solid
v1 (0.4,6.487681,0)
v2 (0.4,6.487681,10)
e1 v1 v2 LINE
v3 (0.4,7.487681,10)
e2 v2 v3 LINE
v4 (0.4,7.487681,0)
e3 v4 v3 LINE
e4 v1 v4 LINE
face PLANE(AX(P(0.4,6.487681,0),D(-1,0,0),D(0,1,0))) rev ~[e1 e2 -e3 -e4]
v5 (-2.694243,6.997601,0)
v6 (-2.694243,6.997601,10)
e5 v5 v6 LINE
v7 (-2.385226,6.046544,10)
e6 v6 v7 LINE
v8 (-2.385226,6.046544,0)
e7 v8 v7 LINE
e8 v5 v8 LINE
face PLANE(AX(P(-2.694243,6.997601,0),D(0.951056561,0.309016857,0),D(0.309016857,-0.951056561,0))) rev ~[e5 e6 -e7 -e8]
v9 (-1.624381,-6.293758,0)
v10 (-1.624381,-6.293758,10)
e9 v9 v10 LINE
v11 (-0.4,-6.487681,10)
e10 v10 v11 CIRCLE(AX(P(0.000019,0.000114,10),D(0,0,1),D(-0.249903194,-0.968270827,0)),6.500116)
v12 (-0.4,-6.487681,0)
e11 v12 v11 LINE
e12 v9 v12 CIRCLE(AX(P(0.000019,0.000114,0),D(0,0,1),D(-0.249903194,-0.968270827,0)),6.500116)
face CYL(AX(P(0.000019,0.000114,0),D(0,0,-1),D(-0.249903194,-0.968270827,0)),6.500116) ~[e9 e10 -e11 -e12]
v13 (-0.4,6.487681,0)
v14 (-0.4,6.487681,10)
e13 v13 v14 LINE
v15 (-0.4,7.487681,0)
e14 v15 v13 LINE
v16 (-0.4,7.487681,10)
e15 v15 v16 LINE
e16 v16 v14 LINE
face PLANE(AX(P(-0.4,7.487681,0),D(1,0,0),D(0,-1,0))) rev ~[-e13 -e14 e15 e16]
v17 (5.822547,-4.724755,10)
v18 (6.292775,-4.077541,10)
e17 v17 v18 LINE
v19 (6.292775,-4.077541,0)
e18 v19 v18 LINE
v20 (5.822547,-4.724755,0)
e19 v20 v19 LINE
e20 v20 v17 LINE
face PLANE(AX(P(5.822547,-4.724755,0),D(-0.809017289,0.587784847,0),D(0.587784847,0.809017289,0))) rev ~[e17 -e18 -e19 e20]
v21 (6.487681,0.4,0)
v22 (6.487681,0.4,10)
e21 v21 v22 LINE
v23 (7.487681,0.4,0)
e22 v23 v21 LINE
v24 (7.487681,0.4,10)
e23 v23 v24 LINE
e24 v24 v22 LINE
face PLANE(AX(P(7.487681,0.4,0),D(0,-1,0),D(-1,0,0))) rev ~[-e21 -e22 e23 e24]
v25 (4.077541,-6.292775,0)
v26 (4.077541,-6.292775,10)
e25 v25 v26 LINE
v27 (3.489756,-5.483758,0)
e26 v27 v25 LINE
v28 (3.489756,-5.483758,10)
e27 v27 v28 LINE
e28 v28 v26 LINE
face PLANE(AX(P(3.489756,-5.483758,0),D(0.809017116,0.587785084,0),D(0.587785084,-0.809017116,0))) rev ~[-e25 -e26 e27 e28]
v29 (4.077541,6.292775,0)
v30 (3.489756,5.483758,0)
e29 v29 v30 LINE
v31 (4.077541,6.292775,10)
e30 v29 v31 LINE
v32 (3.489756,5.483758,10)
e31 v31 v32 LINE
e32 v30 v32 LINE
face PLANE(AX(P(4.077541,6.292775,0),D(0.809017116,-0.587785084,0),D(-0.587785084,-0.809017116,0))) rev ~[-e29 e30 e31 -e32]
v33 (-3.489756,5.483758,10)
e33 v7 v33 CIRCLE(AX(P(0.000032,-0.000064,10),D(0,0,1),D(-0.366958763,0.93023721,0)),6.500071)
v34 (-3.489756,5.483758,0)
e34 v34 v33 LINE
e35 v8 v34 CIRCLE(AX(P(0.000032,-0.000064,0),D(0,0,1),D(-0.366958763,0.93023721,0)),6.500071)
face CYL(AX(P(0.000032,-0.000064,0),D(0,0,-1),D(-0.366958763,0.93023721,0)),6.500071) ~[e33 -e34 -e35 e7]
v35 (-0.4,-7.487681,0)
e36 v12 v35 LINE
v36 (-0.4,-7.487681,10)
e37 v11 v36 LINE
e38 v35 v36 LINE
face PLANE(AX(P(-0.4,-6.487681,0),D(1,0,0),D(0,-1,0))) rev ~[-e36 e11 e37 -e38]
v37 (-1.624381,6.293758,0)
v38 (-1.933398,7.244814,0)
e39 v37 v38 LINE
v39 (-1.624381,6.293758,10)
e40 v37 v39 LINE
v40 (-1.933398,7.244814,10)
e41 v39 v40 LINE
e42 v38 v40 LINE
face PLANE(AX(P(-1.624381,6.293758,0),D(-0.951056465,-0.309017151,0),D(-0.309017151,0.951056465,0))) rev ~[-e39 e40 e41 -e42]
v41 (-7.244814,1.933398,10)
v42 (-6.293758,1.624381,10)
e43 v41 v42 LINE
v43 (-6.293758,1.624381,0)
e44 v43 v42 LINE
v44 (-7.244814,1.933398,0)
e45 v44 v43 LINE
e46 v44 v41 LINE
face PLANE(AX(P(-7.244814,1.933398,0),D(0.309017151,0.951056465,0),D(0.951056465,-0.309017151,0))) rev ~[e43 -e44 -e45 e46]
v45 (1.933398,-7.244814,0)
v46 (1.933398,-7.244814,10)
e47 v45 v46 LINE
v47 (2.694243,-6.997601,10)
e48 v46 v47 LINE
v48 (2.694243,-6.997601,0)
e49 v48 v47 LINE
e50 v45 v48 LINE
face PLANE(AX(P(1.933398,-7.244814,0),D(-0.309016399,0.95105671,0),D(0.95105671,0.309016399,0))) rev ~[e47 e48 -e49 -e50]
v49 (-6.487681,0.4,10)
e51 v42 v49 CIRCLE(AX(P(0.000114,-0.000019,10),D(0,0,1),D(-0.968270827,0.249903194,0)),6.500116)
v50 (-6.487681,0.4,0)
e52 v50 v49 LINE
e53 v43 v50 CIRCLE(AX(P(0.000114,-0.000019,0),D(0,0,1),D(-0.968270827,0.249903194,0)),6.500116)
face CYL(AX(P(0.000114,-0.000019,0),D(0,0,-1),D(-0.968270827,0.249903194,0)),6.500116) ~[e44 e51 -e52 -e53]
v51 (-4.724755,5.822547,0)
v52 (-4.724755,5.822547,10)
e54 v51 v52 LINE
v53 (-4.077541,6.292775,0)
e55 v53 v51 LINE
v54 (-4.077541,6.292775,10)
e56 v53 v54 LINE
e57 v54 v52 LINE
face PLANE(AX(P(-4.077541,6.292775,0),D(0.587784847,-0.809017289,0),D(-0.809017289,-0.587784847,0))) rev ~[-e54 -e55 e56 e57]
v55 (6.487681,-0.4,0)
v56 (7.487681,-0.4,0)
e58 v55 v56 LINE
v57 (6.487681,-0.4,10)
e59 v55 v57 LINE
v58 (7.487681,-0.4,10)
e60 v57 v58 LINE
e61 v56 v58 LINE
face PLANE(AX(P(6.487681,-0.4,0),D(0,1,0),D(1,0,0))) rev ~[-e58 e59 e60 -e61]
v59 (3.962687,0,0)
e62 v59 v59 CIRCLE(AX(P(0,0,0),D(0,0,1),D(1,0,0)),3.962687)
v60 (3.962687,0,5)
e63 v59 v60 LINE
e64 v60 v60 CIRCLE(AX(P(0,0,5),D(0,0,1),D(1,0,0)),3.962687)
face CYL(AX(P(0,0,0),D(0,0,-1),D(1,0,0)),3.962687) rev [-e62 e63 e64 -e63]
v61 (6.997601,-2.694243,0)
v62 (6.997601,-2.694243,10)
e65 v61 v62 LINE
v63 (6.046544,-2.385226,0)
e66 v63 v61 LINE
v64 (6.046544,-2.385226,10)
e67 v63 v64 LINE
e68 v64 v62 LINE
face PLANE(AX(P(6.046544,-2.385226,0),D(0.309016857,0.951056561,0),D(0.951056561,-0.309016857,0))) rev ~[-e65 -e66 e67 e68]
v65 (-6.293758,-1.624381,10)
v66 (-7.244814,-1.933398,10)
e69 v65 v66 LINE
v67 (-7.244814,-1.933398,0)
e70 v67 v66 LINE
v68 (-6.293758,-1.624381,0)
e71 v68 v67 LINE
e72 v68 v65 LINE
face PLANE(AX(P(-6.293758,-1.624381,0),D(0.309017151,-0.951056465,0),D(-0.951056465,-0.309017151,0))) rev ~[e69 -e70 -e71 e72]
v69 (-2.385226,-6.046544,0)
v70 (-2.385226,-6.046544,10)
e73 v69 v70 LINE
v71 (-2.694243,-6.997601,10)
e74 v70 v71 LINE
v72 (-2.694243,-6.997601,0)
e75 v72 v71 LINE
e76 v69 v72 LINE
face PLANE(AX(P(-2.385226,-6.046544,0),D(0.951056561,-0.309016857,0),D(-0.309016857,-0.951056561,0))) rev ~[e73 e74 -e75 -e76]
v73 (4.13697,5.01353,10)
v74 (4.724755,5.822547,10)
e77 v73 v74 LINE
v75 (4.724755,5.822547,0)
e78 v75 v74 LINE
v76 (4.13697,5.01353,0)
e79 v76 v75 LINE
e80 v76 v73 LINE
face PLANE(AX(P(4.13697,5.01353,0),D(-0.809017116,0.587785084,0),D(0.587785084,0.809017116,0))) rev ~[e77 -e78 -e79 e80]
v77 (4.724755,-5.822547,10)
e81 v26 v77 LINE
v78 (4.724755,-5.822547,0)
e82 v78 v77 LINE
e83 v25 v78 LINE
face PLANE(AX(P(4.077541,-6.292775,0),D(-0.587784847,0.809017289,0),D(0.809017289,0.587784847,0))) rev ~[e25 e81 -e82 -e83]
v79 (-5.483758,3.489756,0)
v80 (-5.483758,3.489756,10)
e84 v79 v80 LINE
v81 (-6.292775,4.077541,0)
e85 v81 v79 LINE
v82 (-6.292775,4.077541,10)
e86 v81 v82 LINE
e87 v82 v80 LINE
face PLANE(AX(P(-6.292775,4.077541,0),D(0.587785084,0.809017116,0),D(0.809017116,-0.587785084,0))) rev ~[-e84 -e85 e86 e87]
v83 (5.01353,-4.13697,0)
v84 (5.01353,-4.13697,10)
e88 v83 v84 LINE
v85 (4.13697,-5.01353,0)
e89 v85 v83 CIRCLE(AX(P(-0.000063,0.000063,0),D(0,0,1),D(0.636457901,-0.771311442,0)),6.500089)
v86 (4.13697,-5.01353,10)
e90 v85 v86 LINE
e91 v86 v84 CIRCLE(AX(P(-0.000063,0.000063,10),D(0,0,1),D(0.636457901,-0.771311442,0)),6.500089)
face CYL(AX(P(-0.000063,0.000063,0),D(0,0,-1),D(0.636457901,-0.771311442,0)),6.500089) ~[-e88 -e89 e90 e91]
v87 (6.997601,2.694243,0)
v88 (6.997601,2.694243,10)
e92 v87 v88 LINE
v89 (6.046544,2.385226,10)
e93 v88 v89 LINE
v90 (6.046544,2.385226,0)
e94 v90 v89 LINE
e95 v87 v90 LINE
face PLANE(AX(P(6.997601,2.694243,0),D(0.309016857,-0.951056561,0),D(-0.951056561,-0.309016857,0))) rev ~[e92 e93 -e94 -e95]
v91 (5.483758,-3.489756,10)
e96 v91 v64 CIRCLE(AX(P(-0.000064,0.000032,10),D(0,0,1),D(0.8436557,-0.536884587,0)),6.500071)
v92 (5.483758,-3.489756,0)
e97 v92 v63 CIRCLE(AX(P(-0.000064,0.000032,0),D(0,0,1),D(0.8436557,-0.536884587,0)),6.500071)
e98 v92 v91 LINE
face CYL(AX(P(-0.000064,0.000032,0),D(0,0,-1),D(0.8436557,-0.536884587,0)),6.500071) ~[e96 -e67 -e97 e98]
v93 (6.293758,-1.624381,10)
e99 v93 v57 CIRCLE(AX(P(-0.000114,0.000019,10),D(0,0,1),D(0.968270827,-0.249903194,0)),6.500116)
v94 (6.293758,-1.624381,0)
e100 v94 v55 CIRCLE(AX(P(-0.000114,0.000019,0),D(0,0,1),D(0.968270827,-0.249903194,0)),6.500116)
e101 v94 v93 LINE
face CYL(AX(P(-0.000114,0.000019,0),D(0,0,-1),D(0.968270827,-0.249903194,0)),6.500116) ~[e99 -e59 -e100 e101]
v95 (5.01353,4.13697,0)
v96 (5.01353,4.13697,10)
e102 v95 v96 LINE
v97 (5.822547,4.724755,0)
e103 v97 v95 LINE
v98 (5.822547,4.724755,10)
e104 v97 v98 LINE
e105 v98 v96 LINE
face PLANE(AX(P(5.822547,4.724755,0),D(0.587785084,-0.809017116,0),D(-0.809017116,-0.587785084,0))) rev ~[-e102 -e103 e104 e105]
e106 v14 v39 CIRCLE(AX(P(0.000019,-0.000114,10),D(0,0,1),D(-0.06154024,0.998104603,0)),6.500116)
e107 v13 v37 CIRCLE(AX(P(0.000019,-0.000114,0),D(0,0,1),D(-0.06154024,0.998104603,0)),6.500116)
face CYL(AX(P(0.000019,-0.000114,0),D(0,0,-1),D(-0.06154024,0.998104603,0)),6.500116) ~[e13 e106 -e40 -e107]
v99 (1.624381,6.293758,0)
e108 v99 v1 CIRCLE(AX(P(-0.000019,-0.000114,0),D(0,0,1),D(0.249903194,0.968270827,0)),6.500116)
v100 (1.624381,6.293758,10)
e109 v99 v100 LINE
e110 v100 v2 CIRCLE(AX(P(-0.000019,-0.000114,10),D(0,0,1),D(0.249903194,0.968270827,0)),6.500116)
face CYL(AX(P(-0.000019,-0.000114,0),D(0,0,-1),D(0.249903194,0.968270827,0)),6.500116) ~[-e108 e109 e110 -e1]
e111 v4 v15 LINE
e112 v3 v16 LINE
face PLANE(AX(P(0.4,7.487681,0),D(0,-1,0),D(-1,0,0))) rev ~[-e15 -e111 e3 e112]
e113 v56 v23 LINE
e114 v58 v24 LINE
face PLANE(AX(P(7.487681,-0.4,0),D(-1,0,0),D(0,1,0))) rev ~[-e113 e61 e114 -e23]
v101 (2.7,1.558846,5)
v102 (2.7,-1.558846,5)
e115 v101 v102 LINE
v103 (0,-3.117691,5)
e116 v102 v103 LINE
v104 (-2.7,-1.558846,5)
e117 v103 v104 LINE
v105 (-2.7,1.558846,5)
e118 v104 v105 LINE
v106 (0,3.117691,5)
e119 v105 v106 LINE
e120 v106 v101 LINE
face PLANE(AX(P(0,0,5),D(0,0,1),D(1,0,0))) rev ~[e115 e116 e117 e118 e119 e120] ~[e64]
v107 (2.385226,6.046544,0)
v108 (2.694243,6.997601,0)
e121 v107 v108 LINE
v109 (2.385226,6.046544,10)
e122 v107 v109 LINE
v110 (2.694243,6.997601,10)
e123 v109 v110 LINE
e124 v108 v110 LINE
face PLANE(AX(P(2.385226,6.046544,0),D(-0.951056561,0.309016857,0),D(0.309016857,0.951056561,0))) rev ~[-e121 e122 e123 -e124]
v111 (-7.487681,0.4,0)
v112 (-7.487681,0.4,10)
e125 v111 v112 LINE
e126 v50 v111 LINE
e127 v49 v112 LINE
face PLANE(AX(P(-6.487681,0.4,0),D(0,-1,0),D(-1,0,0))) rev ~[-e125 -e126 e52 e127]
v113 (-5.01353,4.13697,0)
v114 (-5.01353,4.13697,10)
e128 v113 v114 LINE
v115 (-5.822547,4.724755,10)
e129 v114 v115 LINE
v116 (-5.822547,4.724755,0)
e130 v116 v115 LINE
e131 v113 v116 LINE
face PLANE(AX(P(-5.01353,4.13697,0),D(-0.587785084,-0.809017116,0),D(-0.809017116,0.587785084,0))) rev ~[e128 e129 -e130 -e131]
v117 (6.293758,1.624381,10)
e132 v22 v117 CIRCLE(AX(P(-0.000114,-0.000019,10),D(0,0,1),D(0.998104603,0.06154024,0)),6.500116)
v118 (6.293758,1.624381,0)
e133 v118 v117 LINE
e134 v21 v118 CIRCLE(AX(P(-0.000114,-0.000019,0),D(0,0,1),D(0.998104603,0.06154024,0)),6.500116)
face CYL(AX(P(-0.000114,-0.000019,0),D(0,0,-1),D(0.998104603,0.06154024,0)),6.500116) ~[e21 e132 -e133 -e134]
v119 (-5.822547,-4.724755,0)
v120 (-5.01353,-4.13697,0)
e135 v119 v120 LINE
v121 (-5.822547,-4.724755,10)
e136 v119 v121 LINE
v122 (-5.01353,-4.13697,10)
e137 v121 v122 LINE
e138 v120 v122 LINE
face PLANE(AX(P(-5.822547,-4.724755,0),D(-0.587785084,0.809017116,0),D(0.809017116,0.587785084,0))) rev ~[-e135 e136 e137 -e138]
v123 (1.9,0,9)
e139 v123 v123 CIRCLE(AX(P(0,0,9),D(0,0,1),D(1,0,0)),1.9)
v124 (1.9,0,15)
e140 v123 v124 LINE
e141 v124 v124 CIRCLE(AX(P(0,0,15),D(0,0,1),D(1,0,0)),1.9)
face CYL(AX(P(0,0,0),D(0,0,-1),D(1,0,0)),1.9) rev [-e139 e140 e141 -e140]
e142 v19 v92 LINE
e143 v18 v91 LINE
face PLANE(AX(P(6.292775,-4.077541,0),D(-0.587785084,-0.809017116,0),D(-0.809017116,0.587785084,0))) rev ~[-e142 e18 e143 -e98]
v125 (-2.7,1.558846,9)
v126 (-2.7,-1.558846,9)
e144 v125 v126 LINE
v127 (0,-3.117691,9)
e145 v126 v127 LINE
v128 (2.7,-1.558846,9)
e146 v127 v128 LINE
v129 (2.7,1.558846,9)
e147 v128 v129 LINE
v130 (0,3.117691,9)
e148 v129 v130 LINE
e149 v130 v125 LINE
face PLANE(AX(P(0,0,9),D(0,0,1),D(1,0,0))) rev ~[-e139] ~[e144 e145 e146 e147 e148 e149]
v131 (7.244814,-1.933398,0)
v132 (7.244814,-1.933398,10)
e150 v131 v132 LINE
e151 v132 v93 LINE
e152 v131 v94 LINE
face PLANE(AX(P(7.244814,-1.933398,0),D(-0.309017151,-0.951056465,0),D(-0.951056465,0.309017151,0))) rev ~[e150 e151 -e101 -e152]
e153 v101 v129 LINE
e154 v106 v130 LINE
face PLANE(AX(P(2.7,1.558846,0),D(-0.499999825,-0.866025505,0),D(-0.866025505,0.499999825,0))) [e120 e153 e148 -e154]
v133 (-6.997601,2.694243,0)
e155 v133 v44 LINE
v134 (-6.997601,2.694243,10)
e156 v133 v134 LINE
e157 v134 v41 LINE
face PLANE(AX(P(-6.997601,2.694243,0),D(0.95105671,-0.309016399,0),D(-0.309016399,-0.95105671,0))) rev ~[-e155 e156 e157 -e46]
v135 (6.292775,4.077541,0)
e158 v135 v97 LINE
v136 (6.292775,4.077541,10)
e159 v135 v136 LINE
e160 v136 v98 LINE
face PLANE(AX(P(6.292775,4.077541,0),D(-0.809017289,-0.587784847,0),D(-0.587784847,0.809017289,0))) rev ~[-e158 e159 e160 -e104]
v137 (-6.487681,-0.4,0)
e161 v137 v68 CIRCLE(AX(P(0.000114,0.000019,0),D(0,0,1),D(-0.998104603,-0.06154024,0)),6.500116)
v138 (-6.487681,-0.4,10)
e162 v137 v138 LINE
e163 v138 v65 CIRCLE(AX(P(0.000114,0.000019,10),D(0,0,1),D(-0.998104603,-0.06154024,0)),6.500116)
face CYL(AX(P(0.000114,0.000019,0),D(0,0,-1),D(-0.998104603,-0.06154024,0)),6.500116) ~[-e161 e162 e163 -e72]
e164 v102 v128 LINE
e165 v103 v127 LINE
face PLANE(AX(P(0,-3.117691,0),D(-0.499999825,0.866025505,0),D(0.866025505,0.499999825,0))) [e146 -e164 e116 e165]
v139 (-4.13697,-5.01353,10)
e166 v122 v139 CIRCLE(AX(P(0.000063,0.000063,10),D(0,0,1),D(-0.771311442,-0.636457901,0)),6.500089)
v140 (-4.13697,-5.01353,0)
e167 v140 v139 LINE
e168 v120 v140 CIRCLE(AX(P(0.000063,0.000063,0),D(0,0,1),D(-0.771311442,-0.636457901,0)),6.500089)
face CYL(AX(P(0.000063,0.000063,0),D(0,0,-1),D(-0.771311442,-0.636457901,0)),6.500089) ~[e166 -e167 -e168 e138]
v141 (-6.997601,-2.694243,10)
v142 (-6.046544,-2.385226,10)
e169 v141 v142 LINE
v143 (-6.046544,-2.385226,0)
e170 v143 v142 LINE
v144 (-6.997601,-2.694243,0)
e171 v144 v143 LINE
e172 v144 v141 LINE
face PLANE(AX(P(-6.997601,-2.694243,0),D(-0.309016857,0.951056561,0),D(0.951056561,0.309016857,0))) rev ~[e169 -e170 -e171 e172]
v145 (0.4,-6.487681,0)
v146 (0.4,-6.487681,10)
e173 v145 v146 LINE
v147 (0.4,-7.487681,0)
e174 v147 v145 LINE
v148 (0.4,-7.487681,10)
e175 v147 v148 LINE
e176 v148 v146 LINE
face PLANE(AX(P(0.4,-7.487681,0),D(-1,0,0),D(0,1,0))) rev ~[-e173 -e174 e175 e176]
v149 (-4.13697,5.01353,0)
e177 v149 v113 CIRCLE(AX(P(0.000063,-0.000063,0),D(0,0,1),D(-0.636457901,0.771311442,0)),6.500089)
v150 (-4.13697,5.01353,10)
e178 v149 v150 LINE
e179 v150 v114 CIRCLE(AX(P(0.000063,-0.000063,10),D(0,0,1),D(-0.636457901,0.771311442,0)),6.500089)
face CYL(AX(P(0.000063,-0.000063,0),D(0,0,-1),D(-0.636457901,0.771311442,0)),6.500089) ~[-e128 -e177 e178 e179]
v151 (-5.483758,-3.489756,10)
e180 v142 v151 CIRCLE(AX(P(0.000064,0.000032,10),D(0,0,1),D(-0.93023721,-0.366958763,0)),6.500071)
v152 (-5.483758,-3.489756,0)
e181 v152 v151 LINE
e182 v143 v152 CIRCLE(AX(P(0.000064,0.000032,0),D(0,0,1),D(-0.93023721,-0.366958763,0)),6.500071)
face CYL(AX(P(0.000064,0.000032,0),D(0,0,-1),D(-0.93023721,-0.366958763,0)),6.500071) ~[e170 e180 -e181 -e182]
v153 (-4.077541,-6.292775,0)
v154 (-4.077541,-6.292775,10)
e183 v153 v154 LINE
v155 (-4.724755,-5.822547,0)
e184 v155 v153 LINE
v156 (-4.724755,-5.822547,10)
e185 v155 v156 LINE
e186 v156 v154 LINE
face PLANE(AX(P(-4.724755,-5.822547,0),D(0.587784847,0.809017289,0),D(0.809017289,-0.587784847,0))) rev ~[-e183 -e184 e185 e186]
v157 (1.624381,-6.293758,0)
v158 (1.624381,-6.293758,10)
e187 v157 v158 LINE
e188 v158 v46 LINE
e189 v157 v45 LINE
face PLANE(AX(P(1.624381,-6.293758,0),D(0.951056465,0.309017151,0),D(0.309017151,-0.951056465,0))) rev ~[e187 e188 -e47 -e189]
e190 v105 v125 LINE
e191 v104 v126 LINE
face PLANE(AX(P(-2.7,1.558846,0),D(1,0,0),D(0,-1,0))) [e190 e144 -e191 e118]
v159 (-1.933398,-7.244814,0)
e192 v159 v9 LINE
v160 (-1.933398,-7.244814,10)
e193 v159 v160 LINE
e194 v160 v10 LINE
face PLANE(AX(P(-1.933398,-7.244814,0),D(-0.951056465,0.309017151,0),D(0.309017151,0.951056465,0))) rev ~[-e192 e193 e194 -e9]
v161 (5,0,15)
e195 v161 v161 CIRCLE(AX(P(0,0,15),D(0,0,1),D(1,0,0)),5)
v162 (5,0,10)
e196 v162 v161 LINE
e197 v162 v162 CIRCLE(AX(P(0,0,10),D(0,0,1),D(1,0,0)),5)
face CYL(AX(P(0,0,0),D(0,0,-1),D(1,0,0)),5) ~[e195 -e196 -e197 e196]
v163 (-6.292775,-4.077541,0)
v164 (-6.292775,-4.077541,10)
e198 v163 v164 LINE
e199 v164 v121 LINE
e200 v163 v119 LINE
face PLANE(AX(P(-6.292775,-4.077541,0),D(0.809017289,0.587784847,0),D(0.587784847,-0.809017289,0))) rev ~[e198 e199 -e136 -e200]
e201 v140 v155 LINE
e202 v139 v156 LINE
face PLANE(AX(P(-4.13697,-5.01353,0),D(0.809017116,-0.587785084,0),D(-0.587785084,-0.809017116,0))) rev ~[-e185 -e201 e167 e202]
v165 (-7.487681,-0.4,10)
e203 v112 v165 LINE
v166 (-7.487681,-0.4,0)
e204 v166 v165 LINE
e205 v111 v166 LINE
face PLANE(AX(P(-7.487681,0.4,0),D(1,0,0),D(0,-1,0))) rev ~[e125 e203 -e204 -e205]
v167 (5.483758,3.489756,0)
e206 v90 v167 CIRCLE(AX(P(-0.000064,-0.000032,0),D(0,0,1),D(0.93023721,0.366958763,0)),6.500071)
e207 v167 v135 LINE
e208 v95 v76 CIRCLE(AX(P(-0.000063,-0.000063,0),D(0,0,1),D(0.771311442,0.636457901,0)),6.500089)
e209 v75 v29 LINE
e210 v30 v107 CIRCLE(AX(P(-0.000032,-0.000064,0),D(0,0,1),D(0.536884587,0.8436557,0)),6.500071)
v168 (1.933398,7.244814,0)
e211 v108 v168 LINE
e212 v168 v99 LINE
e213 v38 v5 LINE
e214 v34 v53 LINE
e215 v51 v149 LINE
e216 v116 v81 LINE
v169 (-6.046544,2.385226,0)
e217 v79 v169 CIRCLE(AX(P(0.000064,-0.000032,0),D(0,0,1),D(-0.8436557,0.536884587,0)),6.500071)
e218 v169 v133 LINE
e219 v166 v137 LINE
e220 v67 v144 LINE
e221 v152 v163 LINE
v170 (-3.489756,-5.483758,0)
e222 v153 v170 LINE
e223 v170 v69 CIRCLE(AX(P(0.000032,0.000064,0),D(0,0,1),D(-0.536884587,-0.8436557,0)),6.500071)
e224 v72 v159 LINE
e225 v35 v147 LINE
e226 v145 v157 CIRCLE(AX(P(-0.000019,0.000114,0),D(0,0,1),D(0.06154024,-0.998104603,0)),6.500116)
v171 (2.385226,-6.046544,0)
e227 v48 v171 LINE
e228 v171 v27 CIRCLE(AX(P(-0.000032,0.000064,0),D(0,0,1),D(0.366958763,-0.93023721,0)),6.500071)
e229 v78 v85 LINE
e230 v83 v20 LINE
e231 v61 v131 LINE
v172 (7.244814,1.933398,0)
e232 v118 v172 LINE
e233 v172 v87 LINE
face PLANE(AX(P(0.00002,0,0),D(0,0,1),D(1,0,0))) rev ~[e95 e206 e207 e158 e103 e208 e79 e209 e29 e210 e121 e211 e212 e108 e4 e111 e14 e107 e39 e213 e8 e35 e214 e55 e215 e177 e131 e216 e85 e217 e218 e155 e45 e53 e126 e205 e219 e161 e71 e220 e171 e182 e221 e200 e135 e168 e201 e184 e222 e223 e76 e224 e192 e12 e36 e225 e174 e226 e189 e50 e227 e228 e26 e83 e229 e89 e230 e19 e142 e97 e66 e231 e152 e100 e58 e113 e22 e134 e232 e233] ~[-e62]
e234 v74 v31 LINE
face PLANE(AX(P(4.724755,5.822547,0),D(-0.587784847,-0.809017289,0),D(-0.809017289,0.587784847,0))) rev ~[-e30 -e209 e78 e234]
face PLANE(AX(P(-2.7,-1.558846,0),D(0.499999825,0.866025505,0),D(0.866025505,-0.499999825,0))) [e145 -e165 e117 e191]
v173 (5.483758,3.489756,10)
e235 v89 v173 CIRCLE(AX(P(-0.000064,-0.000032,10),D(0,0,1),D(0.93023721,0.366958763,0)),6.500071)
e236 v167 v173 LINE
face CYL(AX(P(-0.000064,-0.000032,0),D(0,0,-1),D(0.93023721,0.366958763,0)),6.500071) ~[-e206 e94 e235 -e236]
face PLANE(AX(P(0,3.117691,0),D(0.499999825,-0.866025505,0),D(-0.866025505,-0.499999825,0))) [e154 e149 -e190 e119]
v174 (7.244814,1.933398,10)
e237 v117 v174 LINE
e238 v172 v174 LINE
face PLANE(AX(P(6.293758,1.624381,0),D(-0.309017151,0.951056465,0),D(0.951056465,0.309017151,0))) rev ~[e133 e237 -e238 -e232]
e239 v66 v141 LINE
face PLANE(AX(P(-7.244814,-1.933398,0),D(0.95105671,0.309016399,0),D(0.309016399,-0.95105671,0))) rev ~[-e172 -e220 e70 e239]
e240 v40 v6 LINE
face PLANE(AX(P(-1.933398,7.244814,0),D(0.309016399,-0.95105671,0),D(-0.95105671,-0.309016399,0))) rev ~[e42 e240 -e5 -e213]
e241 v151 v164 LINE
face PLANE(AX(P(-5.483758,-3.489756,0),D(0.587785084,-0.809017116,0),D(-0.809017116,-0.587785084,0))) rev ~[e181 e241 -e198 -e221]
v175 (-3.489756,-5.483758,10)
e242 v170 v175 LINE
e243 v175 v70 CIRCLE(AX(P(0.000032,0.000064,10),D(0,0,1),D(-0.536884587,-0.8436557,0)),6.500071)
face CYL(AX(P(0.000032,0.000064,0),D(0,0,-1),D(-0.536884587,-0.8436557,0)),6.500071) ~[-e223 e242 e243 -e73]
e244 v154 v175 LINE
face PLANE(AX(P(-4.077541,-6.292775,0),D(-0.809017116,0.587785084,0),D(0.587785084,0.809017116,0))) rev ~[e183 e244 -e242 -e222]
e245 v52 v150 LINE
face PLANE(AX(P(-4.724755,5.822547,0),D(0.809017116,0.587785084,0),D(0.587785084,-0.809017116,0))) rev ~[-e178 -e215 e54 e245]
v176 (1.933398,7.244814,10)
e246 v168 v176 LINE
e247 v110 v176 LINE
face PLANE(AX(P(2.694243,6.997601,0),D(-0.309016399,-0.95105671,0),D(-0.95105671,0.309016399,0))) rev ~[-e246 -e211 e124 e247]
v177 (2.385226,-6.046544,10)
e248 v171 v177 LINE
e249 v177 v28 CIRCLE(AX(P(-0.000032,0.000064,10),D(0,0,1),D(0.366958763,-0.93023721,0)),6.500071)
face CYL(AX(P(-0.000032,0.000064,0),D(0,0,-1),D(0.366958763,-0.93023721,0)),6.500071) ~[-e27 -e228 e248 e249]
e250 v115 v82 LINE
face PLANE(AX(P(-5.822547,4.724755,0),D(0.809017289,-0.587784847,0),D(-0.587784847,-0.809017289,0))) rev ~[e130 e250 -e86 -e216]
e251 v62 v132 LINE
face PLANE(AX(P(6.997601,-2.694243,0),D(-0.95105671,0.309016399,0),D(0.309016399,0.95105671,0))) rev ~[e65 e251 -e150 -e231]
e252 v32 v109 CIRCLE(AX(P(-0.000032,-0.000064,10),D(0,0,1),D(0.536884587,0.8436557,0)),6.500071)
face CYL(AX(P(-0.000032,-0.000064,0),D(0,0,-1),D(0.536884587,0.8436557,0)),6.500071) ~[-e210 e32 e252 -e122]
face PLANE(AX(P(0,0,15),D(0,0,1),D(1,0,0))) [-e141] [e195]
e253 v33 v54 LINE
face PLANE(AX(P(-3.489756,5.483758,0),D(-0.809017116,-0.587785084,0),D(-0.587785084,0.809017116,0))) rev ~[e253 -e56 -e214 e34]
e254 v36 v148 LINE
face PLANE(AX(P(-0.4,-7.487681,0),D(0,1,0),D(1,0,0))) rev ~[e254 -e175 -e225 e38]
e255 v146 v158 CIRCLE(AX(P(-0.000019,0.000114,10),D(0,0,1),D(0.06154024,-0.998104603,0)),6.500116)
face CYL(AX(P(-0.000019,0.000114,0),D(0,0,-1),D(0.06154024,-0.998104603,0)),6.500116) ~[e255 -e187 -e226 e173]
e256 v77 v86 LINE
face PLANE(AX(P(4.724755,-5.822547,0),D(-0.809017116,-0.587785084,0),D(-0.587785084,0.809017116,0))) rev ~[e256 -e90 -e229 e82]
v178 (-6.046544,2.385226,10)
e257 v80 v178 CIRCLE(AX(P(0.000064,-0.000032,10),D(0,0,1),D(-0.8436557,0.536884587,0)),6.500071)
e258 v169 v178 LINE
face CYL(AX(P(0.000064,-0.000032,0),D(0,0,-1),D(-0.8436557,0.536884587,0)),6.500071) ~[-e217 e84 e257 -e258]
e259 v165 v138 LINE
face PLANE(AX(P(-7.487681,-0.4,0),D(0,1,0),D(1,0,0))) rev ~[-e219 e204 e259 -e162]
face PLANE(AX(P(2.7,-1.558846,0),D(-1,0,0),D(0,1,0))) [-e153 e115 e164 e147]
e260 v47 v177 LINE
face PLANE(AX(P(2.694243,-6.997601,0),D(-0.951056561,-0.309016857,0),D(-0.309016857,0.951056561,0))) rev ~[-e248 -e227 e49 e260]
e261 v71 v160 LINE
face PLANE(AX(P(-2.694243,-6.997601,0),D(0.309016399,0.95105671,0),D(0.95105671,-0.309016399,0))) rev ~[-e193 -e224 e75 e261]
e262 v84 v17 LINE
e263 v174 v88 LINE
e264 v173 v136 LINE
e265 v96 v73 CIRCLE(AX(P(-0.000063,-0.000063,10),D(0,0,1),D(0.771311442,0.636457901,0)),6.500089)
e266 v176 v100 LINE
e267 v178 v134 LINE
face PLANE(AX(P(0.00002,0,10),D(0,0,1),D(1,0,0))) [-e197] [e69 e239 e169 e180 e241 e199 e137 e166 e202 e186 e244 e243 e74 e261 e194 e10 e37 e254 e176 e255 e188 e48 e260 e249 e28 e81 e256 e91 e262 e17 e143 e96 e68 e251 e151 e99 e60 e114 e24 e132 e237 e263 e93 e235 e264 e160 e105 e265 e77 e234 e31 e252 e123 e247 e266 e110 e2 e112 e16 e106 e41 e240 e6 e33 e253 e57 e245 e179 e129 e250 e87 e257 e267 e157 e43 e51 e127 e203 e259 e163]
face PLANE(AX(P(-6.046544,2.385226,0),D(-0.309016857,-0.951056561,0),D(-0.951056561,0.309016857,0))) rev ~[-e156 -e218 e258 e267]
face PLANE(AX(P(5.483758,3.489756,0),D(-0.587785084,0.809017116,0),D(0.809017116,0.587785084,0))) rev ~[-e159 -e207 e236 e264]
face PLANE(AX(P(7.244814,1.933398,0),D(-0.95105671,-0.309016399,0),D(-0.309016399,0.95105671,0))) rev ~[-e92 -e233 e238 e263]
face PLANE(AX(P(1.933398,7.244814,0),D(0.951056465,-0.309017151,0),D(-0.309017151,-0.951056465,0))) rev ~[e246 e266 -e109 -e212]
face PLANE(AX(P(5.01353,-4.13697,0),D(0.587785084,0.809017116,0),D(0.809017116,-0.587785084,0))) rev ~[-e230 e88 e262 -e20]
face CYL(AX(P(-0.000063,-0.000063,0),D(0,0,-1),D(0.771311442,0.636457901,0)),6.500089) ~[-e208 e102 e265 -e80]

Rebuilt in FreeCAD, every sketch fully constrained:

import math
import FreeCAD as App
import Part
import Sketcher
Q = App.Units.Quantity


def add_polygon(sketch, points):
    """Adds a closed chain of lines whose ends are joined by coincident constraints."""
    first, n = sketch.GeometryCount, len(points)
    for a, b in zip(points, points[1:] + points[:1]):
        sketch.addGeometry(Part.LineSegment(App.Vector(*a, 0), App.Vector(*b, 0)), False)
    for i in range(n):
        sketch.addConstraint(Sketcher.Constraint("Coincident", first + i, 2, first + (i + 1) % n, 1))

doc = App.newDocument("Part")
params = doc.addObject("Spreadsheet::Sheet", "Params")
for row, (alias, value) in enumerate([
    ("sketch1_diameter", "10 mm"),
    ("sketch1_diameter2", "3.8 mm"),
    ("pad1_length", "15 mm"),
    ("sketch2_diameter", "10 mm"),
    ("sketch2_width", "1 mm"),
    ("sketch2_length", "1 mm"),
    ("sketch2_width2", "0.8 mm"),
    ("sketch2_length2", "0.8 mm"),
    ("pad2_length", "10 mm"),
    ("pocket1_length", "5 mm"),
    ("sketch4_diameter", "3.8 mm"),
    ("pocket2_length", "9 mm"),
], start=1):
    params.set(f"A{row}", alias)
    params.set(f"B{row}", "=" + value)
    params.setAlias(f"B{row}", alias)

body = doc.addObject("PartDesign::Body", "Body")

# Sketch on XY plane
sketch1 = body.newObject("Sketcher::SketchObject", "Sketch")
sketch1.AttachmentSupport = (doc.getObject("XY_Plane"), [""])
sketch1.MapMode = "FlatFace"
sketch1.addGeometry([
    Part.Circle(App.Vector(0, 0, 0), App.Vector(0, 0, 1), 5),
    Part.Circle(App.Vector(0, 0, 0), App.Vector(0, 0, 1), 1.9),
], False)
sketch1.addConstraint([
    Sketcher.Constraint("Coincident", 0, 3, -1, 1),
    Sketcher.Constraint("Coincident", 1, 3, -1, 1),
    Sketcher.Constraint("Diameter", 0, Q("10 mm")),
    Sketcher.Constraint("Diameter", 1, Q("3.8 mm")),
])
sketch1.setExpression("Constraints[2]", "Params.sketch1_diameter")
sketch1.setExpression("Constraints[3]", "Params.sketch1_diameter2")
pad1 = body.newObject("PartDesign::Pad", "Pad")
pad1.Profile = sketch1
pad1.setExpression("Length", "Params.pad1_length")

# Sketch on XY plane
sketch2 = body.newObject("Sketcher::SketchObject", "Sketch001")
sketch2.AttachmentSupport = (doc.getObject("XY_Plane"), [""])
sketch2.MapMode = "FlatFace"
sketch2.addGeometry([
    Part.ArcOfCircle(Part.Circle(App.Vector(-0.000114, -0.000019, 0), App.Vector(0, 0, 1), 6.500116), math.radians(3.528225), math.radians(14.471784)),  # 0
    Part.LineSegment(App.Vector(6.293758, 1.624381, 0), App.Vector(7.244814, 1.933398, 0)),  # 1
    Part.LineSegment(App.Vector(7.244814, 1.933398, 0), App.Vector(6.997601, 2.694243, 0)),  # 2
    Part.LineSegment(App.Vector(6.997601, 2.694243, 0), App.Vector(6.046544, 2.385226, 0)),  # 3
    Part.ArcOfCircle(Part.Circle(App.Vector(-0.000064, -0.000032, 0), App.Vector(0, 0, 1), 6.500071), math.radians(21.528178), math.radians(32.47181)),  # 4
    Part.LineSegment(App.Vector(5.483758, 3.489756, 0), App.Vector(6.292775, 4.077541, 0)),  # 5
    Part.LineSegment(App.Vector(6.292775, 4.077541, 0), App.Vector(5.822547, 4.724755, 0)),  # 6
    Part.LineSegment(App.Vector(5.822547, 4.724755, 0), App.Vector(5.01353, 4.13697, 0)),  # 7
    Part.ArcOfCircle(Part.Circle(App.Vector(-0.000063, -0.000063, 0), App.Vector(0, 0, 1), 6.500089), math.radians(39.528198), math.radians(50.471802)),  # 8
    Part.LineSegment(App.Vector(4.13697, 5.01353, 0), App.Vector(4.724755, 5.822547, 0)),  # 9
    Part.LineSegment(App.Vector(4.724755, 5.822547, 0), App.Vector(4.077541, 6.292775, 0)),  # 10
    Part.LineSegment(App.Vector(4.077541, 6.292775, 0), App.Vector(3.489756, 5.483758, 0)),  # 11
    Part.ArcOfCircle(Part.Circle(App.Vector(-0.000032, -0.000064, 0), App.Vector(0, 0, 1), 6.500071), math.radians(57.52819), math.radians(68.471822)),  # 12
    Part.LineSegment(App.Vector(2.385226, 6.046544, 0), App.Vector(2.694243, 6.997601, 0)),  # 13
    Part.LineSegment(App.Vector(2.694243, 6.997601, 0), App.Vector(1.933398, 7.244814, 0)),  # 14
    Part.LineSegment(App.Vector(1.933398, 7.244814, 0), App.Vector(1.624381, 6.293758, 0)),  # 15
    Part.ArcOfCircle(Part.Circle(App.Vector(-0.000019, -0.000114, 0), App.Vector(0, 0, 1), 6.500116), math.radians(75.528216), math.radians(86.471775)),  # 16
    Part.LineSegment(App.Vector(0.4, 6.487681, 0), App.Vector(0.4, 7.487681, 0)),  # 17
    Part.LineSegment(App.Vector(0.4, 7.487681, 0), App.Vector(-0.4, 7.487681, 0)),  # 18
    Part.LineSegment(App.Vector(-0.4, 7.487681, 0), App.Vector(-0.4, 6.487681, 0)),  # 19
    Part.ArcOfCircle(Part.Circle(App.Vector(0.000019, -0.000114, 0), App.Vector(0, 0, 1), 6.500116), math.radians(93.528225), math.radians(104.471784)),  # 20
    Part.LineSegment(App.Vector(-1.624381, 6.293758, 0), App.Vector(-1.933398, 7.244814, 0)),  # 21
    Part.LineSegment(App.Vector(-1.933398, 7.244814, 0), App.Vector(-2.694243, 6.997601, 0)),  # 22
    Part.LineSegment(App.Vector(-2.694243, 6.997601, 0), App.Vector(-2.385226, 6.046544, 0)),  # 23
    Part.ArcOfCircle(Part.Circle(App.Vector(0.000032, -0.000064, 0), App.Vector(0, 0, 1), 6.500071), math.radians(111.528178), math.radians(122.47181)),  # 24
    Part.LineSegment(App.Vector(-3.489756, 5.483758, 0), App.Vector(-4.077541, 6.292775, 0)),  # 25
    Part.LineSegment(App.Vector(-4.077541, 6.292775, 0), App.Vector(-4.724755, 5.822547, 0)),  # 26
    Part.LineSegment(App.Vector(-4.724755, 5.822547, 0), App.Vector(-4.13697, 5.01353, 0)),  # 27
    Part.ArcOfCircle(Part.Circle(App.Vector(0.000063, -0.000063, 0), App.Vector(0, 0, 1), 6.500089), math.radians(129.528198), math.radians(140.471802)),  # 28
    Part.LineSegment(App.Vector(-5.01353, 4.13697, 0), App.Vector(-5.822547, 4.724755, 0)),  # 29
    Part.LineSegment(App.Vector(-5.822547, 4.724755, 0), App.Vector(-6.292775, 4.077541, 0)),  # 30
    Part.LineSegment(App.Vector(-6.292775, 4.077541, 0), App.Vector(-5.483758, 3.489756, 0)),  # 31
    Part.ArcOfCircle(Part.Circle(App.Vector(0.000064, -0.000032, 0), App.Vector(0, 0, 1), 6.500071), math.radians(147.52819), math.radians(158.471822)),  # 32
    Part.LineSegment(App.Vector(-6.046544, 2.385226, 0), App.Vector(-6.997601, 2.694243, 0)),  # 33
    Part.LineSegment(App.Vector(-6.997601, 2.694243, 0), App.Vector(-7.244814, 1.933398, 0)),  # 34
    Part.LineSegment(App.Vector(-7.244814, 1.933398, 0), App.Vector(-6.293758, 1.624381, 0)),  # 35
    Part.ArcOfCircle(Part.Circle(App.Vector(0.000114, -0.000019, 0), App.Vector(0, 0, 1), 6.500116), math.radians(165.528216), math.radians(176.471775)),  # 36
    Part.LineSegment(App.Vector(-6.487681, 0.4, 0), App.Vector(-7.487681, 0.4, 0)),  # 37
    Part.LineSegment(App.Vector(-7.487681, 0.4, 0), App.Vector(-7.487681, -0.4, 0)),  # 38
    Part.LineSegment(App.Vector(-7.487681, -0.4, 0), App.Vector(-6.487681, -0.4, 0)),  # 39
    Part.ArcOfCircle(Part.Circle(App.Vector(0.000114, 0.000019, 0), App.Vector(0, 0, 1), 6.500116), math.radians(-176.471775), math.radians(-165.528216)),  # 40
    Part.LineSegment(App.Vector(-6.293758, -1.624381, 0), App.Vector(-7.244814, -1.933398, 0)),  # 41
    Part.LineSegment(App.Vector(-7.244814, -1.933398, 0), App.Vector(-6.997601, -2.694243, 0)),  # 42
    Part.LineSegment(App.Vector(-6.997601, -2.694243, 0), App.Vector(-6.046544, -2.385226, 0)),  # 43
    Part.ArcOfCircle(Part.Circle(App.Vector(0.000064, 0.000032, 0), App.Vector(0, 0, 1), 6.500071), math.radians(-158.471822), math.radians(-147.52819)),  # 44
    Part.LineSegment(App.Vector(-5.483758, -3.489756, 0), App.Vector(-6.292775, -4.077541, 0)),  # 45
    Part.LineSegment(App.Vector(-6.292775, -4.077541, 0), App.Vector(-5.822547, -4.724755, 0)),  # 46
    Part.LineSegment(App.Vector(-5.822547, -4.724755, 0), App.Vector(-5.01353, -4.13697, 0)),  # 47
    Part.ArcOfCircle(Part.Circle(App.Vector(0.000063, 0.000063, 0), App.Vector(0, 0, 1), 6.500089), math.radians(-140.471802), math.radians(-129.528198)),  # 48
    Part.LineSegment(App.Vector(-4.13697, -5.01353, 0), App.Vector(-4.724755, -5.822547, 0)),  # 49
    Part.LineSegment(App.Vector(-4.724755, -5.822547, 0), App.Vector(-4.077541, -6.292775, 0)),  # 50
    Part.LineSegment(App.Vector(-4.077541, -6.292775, 0), App.Vector(-3.489756, -5.483758, 0)),  # 51
    Part.ArcOfCircle(Part.Circle(App.Vector(0.000032, 0.000064, 0), App.Vector(0, 0, 1), 6.500071), math.radians(-122.47181), math.radians(-111.528178)),  # 52
    Part.LineSegment(App.Vector(-2.385226, -6.046544, 0), App.Vector(-2.694243, -6.997601, 0)),  # 53
    Part.LineSegment(App.Vector(-2.694243, -6.997601, 0), App.Vector(-1.933398, -7.244814, 0)),  # 54
    Part.LineSegment(App.Vector(-1.933398, -7.244814, 0), App.Vector(-1.624381, -6.293758, 0)),  # 55
    Part.ArcOfCircle(Part.Circle(App.Vector(0.000019, 0.000114, 0), App.Vector(0, 0, 1), 6.500116), math.radians(-104.471784), math.radians(-93.528225)),  # 56
    Part.LineSegment(App.Vector(-0.4, -6.487681, 0), App.Vector(-0.4, -7.487681, 0)),  # 57
    Part.LineSegment(App.Vector(-0.4, -7.487681, 0), App.Vector(0.4, -7.487681, 0)),  # 58
    Part.LineSegment(App.Vector(0.4, -7.487681, 0), App.Vector(0.4, -6.487681, 0)),  # 59
    Part.ArcOfCircle(Part.Circle(App.Vector(-0.000019, 0.000114, 0), App.Vector(0, 0, 1), 6.500116), math.radians(-86.471775), math.radians(-75.528216)),  # 60
    Part.LineSegment(App.Vector(1.624381, -6.293758, 0), App.Vector(1.933398, -7.244814, 0)),  # 61
    Part.LineSegment(App.Vector(1.933398, -7.244814, 0), App.Vector(2.694243, -6.997601, 0)),  # 62
    Part.LineSegment(App.Vector(2.694243, -6.997601, 0), App.Vector(2.385226, -6.046544, 0)),  # 63
    Part.ArcOfCircle(Part.Circle(App.Vector(-0.000032, 0.000064, 0), App.Vector(0, 0, 1), 6.500071), math.radians(-68.471822), math.radians(-57.52819)),  # 64
    Part.LineSegment(App.Vector(3.489756, -5.483758, 0), App.Vector(4.077541, -6.292775, 0)),  # 65
    Part.LineSegment(App.Vector(4.077541, -6.292775, 0), App.Vector(4.724755, -5.822547, 0)),  # 66
    Part.LineSegment(App.Vector(4.724755, -5.822547, 0), App.Vector(4.13697, -5.01353, 0)),  # 67
    Part.ArcOfCircle(Part.Circle(App.Vector(-0.000063, 0.000063, 0), App.Vector(0, 0, 1), 6.500089), math.radians(-50.471802), math.radians(-39.528198)),  # 68
    Part.LineSegment(App.Vector(5.01353, -4.13697, 0), App.Vector(5.822547, -4.724755, 0)),  # 69
    Part.LineSegment(App.Vector(5.822547, -4.724755, 0), App.Vector(6.292775, -4.077541, 0)),  # 70
    Part.LineSegment(App.Vector(6.292775, -4.077541, 0), App.Vector(5.483758, -3.489756, 0)),  # 71
    Part.ArcOfCircle(Part.Circle(App.Vector(-0.000064, 0.000032, 0), App.Vector(0, 0, 1), 6.500071), math.radians(-32.47181), math.radians(-21.528178)),  # 72
    Part.LineSegment(App.Vector(6.046544, -2.385226, 0), App.Vector(6.997601, -2.694243, 0)),  # 73
    Part.LineSegment(App.Vector(6.997601, -2.694243, 0), App.Vector(7.244814, -1.933398, 0)),  # 74
    Part.LineSegment(App.Vector(7.244814, -1.933398, 0), App.Vector(6.293758, -1.624381, 0)),  # 75
    Part.ArcOfCircle(Part.Circle(App.Vector(-0.000114, 0.000019, 0), App.Vector(0, 0, 1), 6.500116), math.radians(-14.471784), math.radians(-3.528225)),  # 76
    Part.LineSegment(App.Vector(6.487681, -0.4, 0), App.Vector(7.487681, -0.4, 0)),  # 77
    Part.LineSegment(App.Vector(7.487681, -0.4, 0), App.Vector(7.487681, 0.4, 0)),  # 78
    Part.LineSegment(App.Vector(7.487681, 0.4, 0), App.Vector(6.487681, 0.4, 0)),  # 79
    Part.Circle(App.Vector(0, 0, 0), App.Vector(0, 0, 1), 5),  # 80
], False)
sketch2.addConstraint([
    Sketcher.Constraint("Coincident", 0, 2, 1, 1),
    Sketcher.Constraint("Coincident", 1, 2, 2, 1),
    Sketcher.Constraint("Coincident", 2, 2, 3, 1),
    Sketcher.Constraint("Coincident", 3, 2, 4, 1),
    Sketcher.Constraint("Coincident", 4, 2, 5, 1),
    Sketcher.Constraint("Coincident", 5, 2, 6, 1),
    Sketcher.Constraint("Coincident", 6, 2, 7, 1),
    Sketcher.Constraint("Coincident", 7, 2, 8, 1),
    Sketcher.Constraint("Coincident", 8, 2, 9, 1),
    Sketcher.Constraint("Coincident", 9, 2, 10, 1),
    Sketcher.Constraint("Coincident", 10, 2, 11, 1),
    Sketcher.Constraint("Coincident", 11, 2, 12, 1),
    Sketcher.Constraint("Coincident", 12, 2, 13, 1),
    Sketcher.Constraint("Coincident", 13, 2, 14, 1),
    Sketcher.Constraint("Coincident", 14, 2, 15, 1),
    Sketcher.Constraint("Coincident", 15, 2, 16, 1),
    Sketcher.Constraint("Coincident", 16, 2, 17, 1),
    Sketcher.Constraint("Coincident", 17, 2, 18, 1),
    Sketcher.Constraint("Coincident", 18, 2, 19, 1),
    Sketcher.Constraint("Coincident", 19, 2, 20, 1),
    Sketcher.Constraint("Coincident", 20, 2, 21, 1),
    Sketcher.Constraint("Coincident", 21, 2, 22, 1),
    Sketcher.Constraint("Coincident", 22, 2, 23, 1),
    Sketcher.Constraint("Coincident", 23, 2, 24, 1),
    Sketcher.Constraint("Coincident", 24, 2, 25, 1),
    Sketcher.Constraint("Coincident", 25, 2, 26, 1),
    Sketcher.Constraint("Coincident", 26, 2, 27, 1),
    Sketcher.Constraint("Coincident", 27, 2, 28, 1),
    Sketcher.Constraint("Coincident", 28, 2, 29, 1),
    Sketcher.Constraint("Coincident", 29, 2, 30, 1),
    Sketcher.Constraint("Coincident", 30, 2, 31, 1),
    Sketcher.Constraint("Coincident", 31, 2, 32, 1),
    Sketcher.Constraint("Coincident", 32, 2, 33, 1),
    Sketcher.Constraint("Coincident", 33, 2, 34, 1),
    Sketcher.Constraint("Coincident", 34, 2, 35, 1),
    Sketcher.Constraint("Coincident", 35, 2, 36, 1),
    Sketcher.Constraint("Coincident", 36, 2, 37, 1),
    Sketcher.Constraint("Coincident", 37, 2, 38, 1),
    Sketcher.Constraint("Coincident", 38, 2, 39, 1),
    Sketcher.Constraint("Coincident", 39, 2, 40, 1),
    Sketcher.Constraint("Coincident", 40, 2, 41, 1),
    Sketcher.Constraint("Coincident", 41, 2, 42, 1),
    Sketcher.Constraint("Coincident", 42, 2, 43, 1),
    Sketcher.Constraint("Coincident", 43, 2, 44, 1),
    Sketcher.Constraint("Coincident", 44, 2, 45, 1),
    Sketcher.Constraint("Coincident", 45, 2, 46, 1),
    Sketcher.Constraint("Coincident", 46, 2, 47, 1),
    Sketcher.Constraint("Coincident", 47, 2, 48, 1),
    Sketcher.Constraint("Coincident", 48, 2, 49, 1),
    Sketcher.Constraint("Coincident", 49, 2, 50, 1),
    Sketcher.Constraint("Coincident", 50, 2, 51, 1),
    Sketcher.Constraint("Coincident", 51, 2, 52, 1),
    Sketcher.Constraint("Coincident", 52, 2, 53, 1),
    Sketcher.Constraint("Coincident", 53, 2, 54, 1),
    Sketcher.Constraint("Coincident", 54, 2, 55, 1),
    Sketcher.Constraint("Coincident", 55, 2, 56, 1),
    Sketcher.Constraint("Coincident", 56, 2, 57, 1),
    Sketcher.Constraint("Coincident", 57, 2, 58, 1),
    Sketcher.Constraint("Coincident", 58, 2, 59, 1),
    Sketcher.Constraint("Coincident", 59, 2, 60, 1),
    Sketcher.Constraint("Coincident", 60, 2, 61, 1),
    Sketcher.Constraint("Coincident", 61, 2, 62, 1),
    Sketcher.Constraint("Coincident", 62, 2, 63, 1),
    Sketcher.Constraint("Coincident", 63, 2, 64, 1),
    Sketcher.Constraint("Coincident", 64, 2, 65, 1),
    Sketcher.Constraint("Coincident", 65, 2, 66, 1),
    Sketcher.Constraint("Coincident", 66, 2, 67, 1),
    Sketcher.Constraint("Coincident", 67, 2, 68, 1),
    Sketcher.Constraint("Coincident", 68, 2, 69, 1),
    Sketcher.Constraint("Coincident", 69, 2, 70, 1),
    Sketcher.Constraint("Coincident", 70, 2, 71, 1),
    Sketcher.Constraint("Coincident", 71, 2, 72, 1),
    Sketcher.Constraint("Coincident", 72, 2, 73, 1),
    Sketcher.Constraint("Coincident", 73, 2, 74, 1),
    Sketcher.Constraint("Coincident", 74, 2, 75, 1),
    Sketcher.Constraint("Coincident", 75, 2, 76, 1),
    Sketcher.Constraint("Coincident", 76, 2, 77, 1),
    Sketcher.Constraint("Coincident", 77, 2, 78, 1),
    Sketcher.Constraint("Coincident", 78, 2, 79, 1),
    Sketcher.Constraint("Coincident", 79, 2, 0, 1),
    Sketcher.Constraint("Vertical", 17),
    Sketcher.Constraint("Horizontal", 18),
    Sketcher.Constraint("Vertical", 19),
    Sketcher.Constraint("Horizontal", 37),
    Sketcher.Constraint("Vertical", 38),
    Sketcher.Constraint("Horizontal", 39),
    Sketcher.Constraint("Vertical", 57),
    Sketcher.Constraint("Horizontal", 58),
    Sketcher.Constraint("Vertical", 59),
    Sketcher.Constraint("Horizontal", 77),
    Sketcher.Constraint("Vertical", 78),
    Sketcher.Constraint("Horizontal", 79),
    Sketcher.Constraint("Coincident", 80, 3, -1, 1),
    Sketcher.Constraint("Equal", 4, 12),
    Sketcher.Constraint("Equal", 0, 16),
    Sketcher.Constraint("Equal", 16, 20),
    Sketcher.Constraint("Equal", 12, 24),
    Sketcher.Constraint("Equal", 8, 28),
    Sketcher.Constraint("Equal", 24, 32),
    Sketcher.Constraint("Equal", 20, 36),
    Sketcher.Constraint("Equal", 36, 40),
    Sketcher.Constraint("Equal", 32, 44),
    Sketcher.Constraint("Equal", 28, 48),
    Sketcher.Constraint("Equal", 44, 52),
    Sketcher.Constraint("Equal", 40, 56),
    Sketcher.Constraint("Equal", 56, 60),
    Sketcher.Constraint("Equal", 52, 64),
    Sketcher.Constraint("Equal", 48, 68),
    Sketcher.Constraint("Equal", 64, 72),
    Sketcher.Constraint("Equal", 60, 76),
    Sketcher.Constraint("Symmetric", 0, 3, 40, 3, -1, 1),
    Sketcher.Constraint("Symmetric", 4, 3, 44, 3, -1, 1),
    Sketcher.Constraint("Symmetric", 8, 3, 48, 3, -1, 1),
    Sketcher.Constraint("Symmetric", 12, 3, 52, 3, -1, 1),
    Sketcher.Constraint("Symmetric", 16, 3, 56, 3, -1, 1),
    Sketcher.Constraint("Symmetric", 20, 3, 60, 3, -1, 1),
    Sketcher.Constraint("Symmetric", 24, 3, 64, 3, -1, 1),
    Sketcher.Constraint("Symmetric", 28, 3, 68, 3, -1, 1),
    Sketcher.Constraint("Symmetric", 32, 3, 72, 3, -1, 1),
    Sketcher.Constraint("Symmetric", 36, 3, 76, 3, -1, 1),
    Sketcher.Constraint("Symmetric", 1, 2, 41, 2, -1, 1),
    Sketcher.Constraint("Symmetric", 2, 2, 42, 2, -1, 1),
    Sketcher.Constraint("Symmetric", 5, 2, 45, 2, -1, 1),
    Sketcher.Constraint("Symmetric", 6, 2, 46, 2, -1, 1),
    Sketcher.Constraint("Symmetric", 9, 2, 49, 2, -1, 1),
    Sketcher.Constraint("Symmetric", 10, 2, 50, 2, -1, 1),
    Sketcher.Constraint("Symmetric", 13, 2, 53, 2, -1, 1),
    Sketcher.Constraint("Symmetric", 14, 2, 54, 2, -1, 1),
    Sketcher.Constraint("Symmetric", 17, 2, 57, 2, -1, 1),
    Sketcher.Constraint("Symmetric", 21, 2, 61, 2, -1, 1),
    Sketcher.Constraint("Symmetric", 22, 2, 62, 2, -1, 1),
    Sketcher.Constraint("Symmetric", 25, 2, 65, 2, -1, 1),
    Sketcher.Constraint("Symmetric", 26, 2, 66, 2, -1, 1),
    Sketcher.Constraint("Symmetric", 29, 2, 69, 2, -1, 1),
    Sketcher.Constraint("Symmetric", 30, 2, 70, 2, -1, 1),
    Sketcher.Constraint("Symmetric", 33, 2, 73, 2, -1, 1),
    Sketcher.Constraint("Symmetric", 34, 2, 74, 2, -1, 1),
    Sketcher.Constraint("Symmetric", 37, 2, 77, 2, -1, 1),
    Sketcher.Constraint("Symmetric", 16, 3, 20, 3, -2),
    Sketcher.Constraint("Symmetric", 12, 3, 24, 3, -2),
    Sketcher.Constraint("Symmetric", 8, 3, 28, 3, -2),
    Sketcher.Constraint("Symmetric", 4, 3, 32, 3, -2),
    Sketcher.Constraint("Symmetric", 0, 3, 36, 3, -2),
    Sketcher.Constraint("Symmetric", 14, 2, 21, 2, -2),
    Sketcher.Constraint("Symmetric", 13, 2, 22, 2, -2),
    Sketcher.Constraint("Symmetric", 10, 2, 25, 2, -2),
    Sketcher.Constraint("Symmetric", 9, 2, 26, 2, -2),
    Sketcher.Constraint("Symmetric", 6, 2, 29, 2, -2),
    Sketcher.Constraint("Symmetric", 5, 2, 30, 2, -2),
    Sketcher.Constraint("Symmetric", 2, 2, 33, 2, -2),
    Sketcher.Constraint("Symmetric", 1, 2, 34, 2, -2),
    Sketcher.Constraint("Perpendicular", 1, 2),
    Sketcher.Constraint("Perpendicular", 2, 3),
    Sketcher.Constraint("Perpendicular", 5, 6),
    Sketcher.Constraint("Perpendicular", 6, 7),
    Sketcher.Constraint("Perpendicular", 9, 10),
    Sketcher.Constraint("Perpendicular", 10, 11),
    Sketcher.Constraint("Perpendicular", 13, 14),
    Sketcher.Constraint("Perpendicular", 14, 15),
    Sketcher.Constraint("Perpendicular", 3, 21),
    Sketcher.Constraint("Perpendicular", 21, 22),
    Sketcher.Constraint("Perpendicular", 22, 23),
    Sketcher.Constraint("Perpendicular", 7, 25),
    Sketcher.Constraint("Perpendicular", 25, 26),
    Sketcher.Constraint("Perpendicular", 26, 27),
    Sketcher.Constraint("Perpendicular", 11, 29),
    Sketcher.Constraint("Perpendicular", 30, 31),
    Sketcher.Constraint("Perpendicular", 15, 33),
    Sketcher.Constraint("Perpendicular", 34, 35),
    Sketcher.Constraint("Perpendicular", 23, 41),
    Sketcher.Constraint("Perpendicular", 42, 43),
    Sketcher.Constraint("Perpendicular", 27, 45),
    Sketcher.Constraint("Perpendicular", 46, 47),
    Sketcher.Constraint("Perpendicular", 31, 49),
    Sketcher.Constraint("Perpendicular", 50, 51),
    Sketcher.Constraint("Perpendicular", 35, 53),
    Sketcher.Constraint("Perpendicular", 54, 55),
    Sketcher.Constraint("Perpendicular", 43, 61),
    Sketcher.Constraint("Perpendicular", 62, 63),
    Sketcher.Constraint("Perpendicular", 47, 65),
    Sketcher.Constraint("Perpendicular", 66, 67),
    Sketcher.Constraint("Perpendicular", 51, 69),
    Sketcher.Constraint("Perpendicular", 70, 71),
    Sketcher.Constraint("Perpendicular", 55, 73),
    Sketcher.Constraint("Perpendicular", 74, 75),
    Sketcher.Constraint("Horizontal", 8, 3, 12, 3),
    Sketcher.Constraint("Horizontal", 16, 2, 19, 2),
    Sketcher.Constraint("Horizontal", 56, 2, 59, 2),
    Sketcher.Constraint("Horizontal", 39, 2, 76, 2),
    Sketcher.Constraint("Horizontal", 37, 2, 78, 2),
    Sketcher.Constraint("Vertical", 4, 3, 8, 3),
    Sketcher.Constraint("Equal", 79, 17),
    Sketcher.Constraint("Equal", 58, 38),
    Sketcher.Constraint("Equal", 1, 3),
    Sketcher.Constraint("Equal", 3, 5),
    Sketcher.Constraint("Equal", 2, 6),
    Sketcher.Constraint("Equal", 5, 7),
    Sketcher.Constraint("Equal", 7, 9),
    Sketcher.Constraint("Equal", 6, 10),
    Sketcher.Constraint("Equal", 9, 11),
    Sketcher.Constraint("Equal", 11, 13),
    Sketcher.Constraint("Equal", 10, 14),
    Sketcher.Constraint("Equal", 13, 15),
    Sketcher.Constraint("Diameter", 80, Q("10 mm")),
    Sketcher.Constraint("DistanceX", 37, 2, 37, 1, Q("1 mm")),
    Sketcher.Constraint("Angle", 1, Q("18.000009 deg")),
    Sketcher.Constraint("Angle", 5, Q("35.999988 deg")),
    Sketcher.Constraint("Distance", 1, Q("1 mm")),
    Sketcher.Constraint("DistanceX", 18, 2, 18, 1, Q("0.8 mm")),
    Sketcher.Constraint("Distance", 2, Q("0.8 mm")),
    Sketcher.Constraint("Radius", 4, Q("6.500071 mm")),
    Sketcher.Constraint("Radius", 8, Q("6.500089 mm")),
    Sketcher.Constraint("Radius", 0, Q("6.500116 mm")),
    Sketcher.Constraint("DistanceX", -1, 1, 2, 2, Q("6.997601 mm")),
    Sketcher.Constraint("DistanceY", -1, 1, 13, 2, Q("6.997601 mm")),
    Sketcher.Constraint("DistanceY", -1, 1, 0, 2, Q("1.624381 mm")),
    Sketcher.Constraint("DistanceY", -1, 1, 5, 2, Q("4.077541 mm")),
    Sketcher.Constraint("DistanceX", -1, 1, 7, 2, Q("5.01353 mm")),
    Sketcher.Constraint("DistanceX", -1, 1, 8, 2, Q("4.13697 mm")),
    Sketcher.Constraint("DistanceY", -1, 1, 16, 2, Q("6.487681 mm")),
    Sketcher.Constraint("DistanceX", 36, 2, -1, 1, Q("6.487681 mm")),
])
sketch2.setExpression("Constraints[203]", "Params.sketch2_diameter")
sketch2.setExpression("Constraints[204]", "Params.sketch2_width")
sketch2.setExpression("Constraints[207]", "Params.sketch2_length")
sketch2.setExpression("Constraints[208]", "Params.sketch2_width2")
sketch2.setExpression("Constraints[209]", "Params.sketch2_length2")
pad2 = body.newObject("PartDesign::Pad", "Pad001")
pad2.Profile = sketch2
pad2.setExpression("Length", "Params.pad2_length")

# Sketch on XY plane
sketch3 = body.newObject("Sketcher::SketchObject", "Sketch002")
sketch3.AttachmentSupport = (doc.getObject("XY_Plane"), [""])
sketch3.MapMode = "FlatFace"
sketch3.addGeometry(Part.Circle(App.Vector(0, 0, 0), App.Vector(0, 0, 1), 4), False)  # 0
add_polygon(sketch3, [(-2.7, -1.6), (-2.7, 1.6), (0, 3.1), (2.7, 1.6), (2.7, -1.6), (0, -3.1)])  # lines 1-6
sketch3.addConstraint([
    Sketcher.Constraint("Vertical", 1),
    Sketcher.Constraint("Vertical", 4),
    Sketcher.Constraint("Coincident", 0, 3, -1, 1),
    Sketcher.Constraint("Symmetric", 1, 2, 4, 2, -1, 1),
    Sketcher.Constraint("Symmetric", 2, 2, 5, 2, -1, 1),
    Sketcher.Constraint("PointOnObject", 2, 2, -2),
    Sketcher.Constraint("Parallel", 3, 6),
    Sketcher.Constraint("Horizontal", 1, 2, 3, 2),
    Sketcher.Constraint("Angle", 2, Q("29.999988 deg")),
    Sketcher.Constraint("DistanceX", 1, 2, -1, 1, Q("2.7 mm")),
    Sketcher.Constraint("Diameter", 0, Q("7.925374 mm")),
    Sketcher.Constraint("DistanceY", 1, 1, 1, 2, Q("3.117692 mm")),
])
pocket1 = body.newObject("PartDesign::Pocket", "Pocket")
pocket1.Profile = sketch3
pocket1.setExpression("Length", "Params.pocket1_length")
pocket1.Reversed = True

# Sketch on XY plane
sketch4 = body.newObject("Sketcher::SketchObject", "Sketch003")
sketch4.AttachmentSupport = (doc.getObject("XY_Plane"), [""])
sketch4.MapMode = "FlatFace"
add_polygon(sketch4, [(2.7, 1.6), (0, 3.1), (-2.7, 1.6), (-2.7, -1.6), (0, -3.1), (2.7, -1.6)])  # lines 0-5
sketch4.addGeometry(Part.Circle(App.Vector(0, 0, 0), App.Vector(0, 0, 1), 1.9), False)  # 6
sketch4.addConstraint([
    Sketcher.Constraint("Vertical", 2),
    Sketcher.Constraint("Vertical", 5),
    Sketcher.Constraint("Coincident", 6, 3, -1, 1),
    Sketcher.Constraint("Symmetric", 0, 2, 3, 2, -1, 1),
    Sketcher.Constraint("Symmetric", 1, 2, 4, 2, -1, 1),
    Sketcher.Constraint("PointOnObject", 0, 2, -2),
    Sketcher.Constraint("Parallel", 0, 3),
    Sketcher.Constraint("Horizontal", 2, 2, 4, 2),
    Sketcher.Constraint("Diameter", 6, Q("3.8 mm")),
    Sketcher.Constraint("Angle", 0, Q("150.000012 deg")),
    Sketcher.Constraint("DistanceX", 1, 2, -1, 1, Q("2.7 mm")),
    Sketcher.Constraint("DistanceY", 2, 2, 2, 1, Q("3.117692 mm")),
])
sketch4.setExpression("Constraints[14]", "Params.sketch4_diameter")
pocket2 = body.newObject("PartDesign::Pocket", "Pocket001")
pocket2.Profile = sketch4
pocket2.setExpression("Length", "Params.pocket2_length")
pocket2.Reversed = True

doc.recompute()
